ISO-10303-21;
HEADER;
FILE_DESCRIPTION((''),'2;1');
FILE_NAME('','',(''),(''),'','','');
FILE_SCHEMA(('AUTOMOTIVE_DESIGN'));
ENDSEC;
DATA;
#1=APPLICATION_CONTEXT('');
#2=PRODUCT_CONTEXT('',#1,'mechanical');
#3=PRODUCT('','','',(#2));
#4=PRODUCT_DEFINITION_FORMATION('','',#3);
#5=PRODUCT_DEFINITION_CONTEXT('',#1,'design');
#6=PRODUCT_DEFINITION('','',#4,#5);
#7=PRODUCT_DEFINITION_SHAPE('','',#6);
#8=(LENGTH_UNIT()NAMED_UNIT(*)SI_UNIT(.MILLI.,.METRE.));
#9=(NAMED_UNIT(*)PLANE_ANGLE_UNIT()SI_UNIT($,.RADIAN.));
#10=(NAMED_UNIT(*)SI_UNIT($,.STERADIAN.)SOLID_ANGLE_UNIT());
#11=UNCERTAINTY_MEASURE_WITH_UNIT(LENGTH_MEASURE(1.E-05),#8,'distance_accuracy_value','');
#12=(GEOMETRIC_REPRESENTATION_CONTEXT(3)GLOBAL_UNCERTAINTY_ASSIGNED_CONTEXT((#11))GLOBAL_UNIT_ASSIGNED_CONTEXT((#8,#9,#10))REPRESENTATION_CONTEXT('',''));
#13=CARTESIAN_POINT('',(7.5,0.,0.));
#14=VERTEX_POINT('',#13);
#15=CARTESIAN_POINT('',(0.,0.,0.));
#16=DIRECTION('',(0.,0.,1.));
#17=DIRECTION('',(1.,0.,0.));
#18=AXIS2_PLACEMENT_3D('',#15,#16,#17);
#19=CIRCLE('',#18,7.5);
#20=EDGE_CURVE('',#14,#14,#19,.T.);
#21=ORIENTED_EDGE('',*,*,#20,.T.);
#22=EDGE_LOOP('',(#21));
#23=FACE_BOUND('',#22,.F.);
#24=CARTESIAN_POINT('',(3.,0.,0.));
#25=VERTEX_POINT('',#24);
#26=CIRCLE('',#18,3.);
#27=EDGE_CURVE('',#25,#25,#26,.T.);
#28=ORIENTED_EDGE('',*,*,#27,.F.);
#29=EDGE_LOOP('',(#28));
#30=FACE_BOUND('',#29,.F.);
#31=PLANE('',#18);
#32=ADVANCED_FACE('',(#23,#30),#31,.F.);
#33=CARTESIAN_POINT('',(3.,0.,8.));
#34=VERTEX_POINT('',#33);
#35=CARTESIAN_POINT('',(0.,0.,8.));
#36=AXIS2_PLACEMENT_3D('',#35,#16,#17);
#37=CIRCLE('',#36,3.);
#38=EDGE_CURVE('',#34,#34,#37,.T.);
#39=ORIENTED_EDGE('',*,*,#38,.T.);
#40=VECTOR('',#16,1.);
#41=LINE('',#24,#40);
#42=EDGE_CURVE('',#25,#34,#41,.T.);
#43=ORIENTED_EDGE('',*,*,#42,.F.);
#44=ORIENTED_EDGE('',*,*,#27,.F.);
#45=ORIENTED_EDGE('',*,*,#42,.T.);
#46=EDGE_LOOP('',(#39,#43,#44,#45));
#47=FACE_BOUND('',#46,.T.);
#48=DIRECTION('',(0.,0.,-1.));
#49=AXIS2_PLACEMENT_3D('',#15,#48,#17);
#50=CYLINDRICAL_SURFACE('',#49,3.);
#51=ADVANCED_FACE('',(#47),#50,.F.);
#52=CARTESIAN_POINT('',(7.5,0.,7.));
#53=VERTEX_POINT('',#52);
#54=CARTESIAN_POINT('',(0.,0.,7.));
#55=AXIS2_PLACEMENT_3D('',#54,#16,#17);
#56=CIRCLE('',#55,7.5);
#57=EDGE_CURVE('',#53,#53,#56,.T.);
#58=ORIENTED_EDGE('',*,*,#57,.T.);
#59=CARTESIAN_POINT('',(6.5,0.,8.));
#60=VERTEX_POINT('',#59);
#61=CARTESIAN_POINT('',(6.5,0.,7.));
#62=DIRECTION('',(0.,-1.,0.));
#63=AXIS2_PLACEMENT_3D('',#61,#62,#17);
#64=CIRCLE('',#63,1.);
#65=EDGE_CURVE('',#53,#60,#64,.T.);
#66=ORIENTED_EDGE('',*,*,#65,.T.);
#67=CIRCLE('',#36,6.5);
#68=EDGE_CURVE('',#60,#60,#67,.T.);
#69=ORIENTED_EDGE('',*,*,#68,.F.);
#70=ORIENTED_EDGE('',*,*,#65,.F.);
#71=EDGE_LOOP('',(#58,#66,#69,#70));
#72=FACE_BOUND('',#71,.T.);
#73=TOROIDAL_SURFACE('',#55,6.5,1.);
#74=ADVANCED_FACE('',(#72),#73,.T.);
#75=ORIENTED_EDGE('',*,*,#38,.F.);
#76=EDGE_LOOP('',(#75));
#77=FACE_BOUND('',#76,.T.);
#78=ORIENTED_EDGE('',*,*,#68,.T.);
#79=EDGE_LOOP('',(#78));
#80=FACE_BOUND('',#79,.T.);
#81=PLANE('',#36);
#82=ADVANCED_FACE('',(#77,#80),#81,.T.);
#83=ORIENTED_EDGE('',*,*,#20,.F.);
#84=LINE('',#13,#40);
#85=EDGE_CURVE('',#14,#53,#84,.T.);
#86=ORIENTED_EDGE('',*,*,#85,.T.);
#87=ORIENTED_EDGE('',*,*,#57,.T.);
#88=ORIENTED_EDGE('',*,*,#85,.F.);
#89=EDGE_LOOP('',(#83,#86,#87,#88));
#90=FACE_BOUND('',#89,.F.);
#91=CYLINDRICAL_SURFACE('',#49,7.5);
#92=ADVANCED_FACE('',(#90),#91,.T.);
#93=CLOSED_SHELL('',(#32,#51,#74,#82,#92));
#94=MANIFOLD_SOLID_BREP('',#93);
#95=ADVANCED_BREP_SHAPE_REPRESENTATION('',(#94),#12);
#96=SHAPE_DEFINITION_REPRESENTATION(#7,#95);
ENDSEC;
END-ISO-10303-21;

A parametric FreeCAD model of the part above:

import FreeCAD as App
import Part
import Sketcher
from FreeCAD import Vector
Q = App.Units.Quantity


def edges_at(feature, points):
    """Names of the edges that pass closest to the given points."""
    edges = feature.Shape.Edges
    near = lambda p: min(range(len(edges)), key=lambda i: edges[i].distToShape(Part.Vertex(*p))[0])
    return sorted({f"Edge{near(p) + 1}" for p in points})

doc = App.newDocument("Part")
body = doc.addObject("PartDesign::Body", "Body")

sketch1 = body.newObject("Sketcher::SketchObject", "Sketch")
sketch1.AttachmentSupport = (doc.getObject("XY_Plane"), [""])
sketch1.MapMode = "FlatFace"
sketch1.addGeometry([
    Part.Circle(Vector(0, 0, 0), Vector(0, 0, 1), 7.5),
    Part.Circle(Vector(0, 0, 0), Vector(0, 0, 1), 3),
], False)
sketch1.addConstraint([
    Sketcher.Constraint("Coincident", 0, 3, -1, 1),
    Sketcher.Constraint("Coincident", 1, 3, -1, 1),
    Sketcher.Constraint("Diameter", 0, Q("15 mm")),
    Sketcher.Constraint("Diameter", 1, Q("6 mm")),
])
pad1 = body.newObject("PartDesign::Pad", "Pad")
pad1.Profile = sketch1
pad1.Length = 8
doc.recompute()

fillet = body.newObject("PartDesign::Fillet", "Fillet")
fillet.Base = (pad1, edges_at(pad1, [(-7.5, 0, 8)]))
fillet.Radius = 1

doc.recompute()
